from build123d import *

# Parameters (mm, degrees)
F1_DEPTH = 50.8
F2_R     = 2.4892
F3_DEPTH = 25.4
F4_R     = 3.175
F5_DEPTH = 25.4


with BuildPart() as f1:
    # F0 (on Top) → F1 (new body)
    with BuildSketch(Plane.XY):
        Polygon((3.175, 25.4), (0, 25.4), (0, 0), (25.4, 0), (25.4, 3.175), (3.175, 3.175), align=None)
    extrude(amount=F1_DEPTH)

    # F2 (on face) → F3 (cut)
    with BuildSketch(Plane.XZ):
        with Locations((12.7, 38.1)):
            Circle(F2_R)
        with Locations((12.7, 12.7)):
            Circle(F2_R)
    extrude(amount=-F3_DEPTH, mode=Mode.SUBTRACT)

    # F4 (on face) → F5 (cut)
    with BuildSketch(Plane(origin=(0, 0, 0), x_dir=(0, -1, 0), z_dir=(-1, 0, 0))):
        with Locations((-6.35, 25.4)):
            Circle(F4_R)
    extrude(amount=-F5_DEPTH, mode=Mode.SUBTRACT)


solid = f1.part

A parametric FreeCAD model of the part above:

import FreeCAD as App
import Part
import Sketcher

V = App.Vector
Q = App.Units.Quantity

doc = App.newDocument("Part")
body = doc.addObject("PartDesign::Body", "Body")

sketch1 = body.newObject("Sketcher::SketchObject", "Sketch")
sketch1.AttachmentSupport = (doc.getObject("XY_Plane"), [""])
sketch1.MapMode = "FlatFace"
sketch1.addGeometry(Part.LineSegment(V(3.175, 25.4, 0), V(0, 25.4, 0)), False)
sketch1.addGeometry(Part.LineSegment(V(0, 25.4, 0), V(0, 0, 0)), False)
sketch1.addGeometry(Part.LineSegment(V(0, 0, 0), V(25.4, 0, 0)), False)
sketch1.addGeometry(Part.LineSegment(V(25.4, 0, 0), V(25.4, 3.175, 0)), False)
sketch1.addGeometry(Part.LineSegment(V(25.4, 3.175, 0), V(3.175, 3.175, 0)), False)
sketch1.addGeometry(Part.LineSegment(V(3.175, 3.175, 0), V(3.175, 25.4, 0)), False)
sketch1.addConstraint(Sketcher.Constraint("Coincident", 0, 2, 1, 1))
sketch1.addConstraint(Sketcher.Constraint("Coincident", 1, 2, 2, 1))
sketch1.addConstraint(Sketcher.Constraint("Coincident", 2, 2, 3, 1))
sketch1.addConstraint(Sketcher.Constraint("Coincident", 3, 2, 4, 1))
sketch1.addConstraint(Sketcher.Constraint("Coincident", 4, 2, 5, 1))
sketch1.addConstraint(Sketcher.Constraint("Coincident", 5, 2, 0, 1))
sketch1.addConstraint(Sketcher.Constraint("Horizontal", 0))
sketch1.addConstraint(Sketcher.Constraint("Vertical", 1))
sketch1.addConstraint(Sketcher.Constraint("Horizontal", 2))
sketch1.addConstraint(Sketcher.Constraint("Vertical", 3))
sketch1.addConstraint(Sketcher.Constraint("Horizontal", 4))
sketch1.addConstraint(Sketcher.Constraint("Vertical", 5))
sketch1.addConstraint(Sketcher.Constraint("Coincident", 1, 2, -1, 1))
sketch1.addConstraint(Sketcher.Constraint("Equal", 2, 1))
sketch1.addConstraint(Sketcher.Constraint("Equal", 0, 3))
sketch1.addConstraint(Sketcher.Constraint("DistanceX", 2, 1, 2, 2, Q("1 in")))
sketch1.addConstraint(Sketcher.Constraint("DistanceX", 0, 2, 0, 1, Q("0.125 in")))
pad1 = body.newObject("PartDesign::Pad", "Pad")
pad1.Profile = sketch1
pad1.Length = Q("2 in")

sketch2 = body.newObject("Sketcher::SketchObject", "Sketch001")
sketch2.AttachmentSupport = (doc.getObject("XZ_Plane"), [""])
sketch2.MapMode = "FlatFace"
sketch2.addGeometry(Part.Circle(V(12.7, 38.1, 0), V(0, 0, 1), 2.4892), False)
sketch2.addGeometry(Part.Circle(V(12.7, 12.7, 0), V(0, 0, 1), 2.4892), False)
sketch2.addConstraint(Sketcher.Constraint("Equal", 0, 1))
sketch2.addConstraint(Sketcher.Constraint("Vertical", 0, 3, 1, 3))
sketch2.addConstraint(Sketcher.Constraint("Diameter", 0, Q("0.196 in")))
sketch2.addConstraint(Sketcher.Constraint("DistanceY", 1, 3, 0, 3, Q("1 in")))
sketch2.addConstraint(Sketcher.Constraint("DistanceX", -1, 1, 0, 3, Q("0.5 in")))
sketch2.addConstraint(Sketcher.Constraint("DistanceY", -1, 1, 0, 3, Q("1.5 in")))
pocket1 = body.newObject("PartDesign::Pocket", "Pocket")
pocket1.Profile = sketch2
pocket1.Length = Q("1 in")

sketch3 = body.newObject("Sketcher::SketchObject", "Sketch002")
sketch3.AttachmentSupport = (doc.getObject("YZ_Plane"), [""])
sketch3.MapMode = "FlatFace"
sketch3.addGeometry(Part.Circle(V(6.35, 25.4, 0), V(0, 0, 1), 3.175), False)
sketch3.addConstraint(Sketcher.Constraint("Diameter", 0, Q("0.25 in")))
sketch3.addConstraint(Sketcher.Constraint("DistanceY", -1, 1, 0, 3, Q("1 in")))
sketch3.addConstraint(Sketcher.Constraint("DistanceX", -1, 1, 0, 3, Q("0.25 in")))
pocket2 = body.newObject("PartDesign::Pocket", "Pocket001")
pocket2.Profile = sketch3
pocket2.Length = Q("1 in")
pocket2.Reversed = True

doc.recompute()
